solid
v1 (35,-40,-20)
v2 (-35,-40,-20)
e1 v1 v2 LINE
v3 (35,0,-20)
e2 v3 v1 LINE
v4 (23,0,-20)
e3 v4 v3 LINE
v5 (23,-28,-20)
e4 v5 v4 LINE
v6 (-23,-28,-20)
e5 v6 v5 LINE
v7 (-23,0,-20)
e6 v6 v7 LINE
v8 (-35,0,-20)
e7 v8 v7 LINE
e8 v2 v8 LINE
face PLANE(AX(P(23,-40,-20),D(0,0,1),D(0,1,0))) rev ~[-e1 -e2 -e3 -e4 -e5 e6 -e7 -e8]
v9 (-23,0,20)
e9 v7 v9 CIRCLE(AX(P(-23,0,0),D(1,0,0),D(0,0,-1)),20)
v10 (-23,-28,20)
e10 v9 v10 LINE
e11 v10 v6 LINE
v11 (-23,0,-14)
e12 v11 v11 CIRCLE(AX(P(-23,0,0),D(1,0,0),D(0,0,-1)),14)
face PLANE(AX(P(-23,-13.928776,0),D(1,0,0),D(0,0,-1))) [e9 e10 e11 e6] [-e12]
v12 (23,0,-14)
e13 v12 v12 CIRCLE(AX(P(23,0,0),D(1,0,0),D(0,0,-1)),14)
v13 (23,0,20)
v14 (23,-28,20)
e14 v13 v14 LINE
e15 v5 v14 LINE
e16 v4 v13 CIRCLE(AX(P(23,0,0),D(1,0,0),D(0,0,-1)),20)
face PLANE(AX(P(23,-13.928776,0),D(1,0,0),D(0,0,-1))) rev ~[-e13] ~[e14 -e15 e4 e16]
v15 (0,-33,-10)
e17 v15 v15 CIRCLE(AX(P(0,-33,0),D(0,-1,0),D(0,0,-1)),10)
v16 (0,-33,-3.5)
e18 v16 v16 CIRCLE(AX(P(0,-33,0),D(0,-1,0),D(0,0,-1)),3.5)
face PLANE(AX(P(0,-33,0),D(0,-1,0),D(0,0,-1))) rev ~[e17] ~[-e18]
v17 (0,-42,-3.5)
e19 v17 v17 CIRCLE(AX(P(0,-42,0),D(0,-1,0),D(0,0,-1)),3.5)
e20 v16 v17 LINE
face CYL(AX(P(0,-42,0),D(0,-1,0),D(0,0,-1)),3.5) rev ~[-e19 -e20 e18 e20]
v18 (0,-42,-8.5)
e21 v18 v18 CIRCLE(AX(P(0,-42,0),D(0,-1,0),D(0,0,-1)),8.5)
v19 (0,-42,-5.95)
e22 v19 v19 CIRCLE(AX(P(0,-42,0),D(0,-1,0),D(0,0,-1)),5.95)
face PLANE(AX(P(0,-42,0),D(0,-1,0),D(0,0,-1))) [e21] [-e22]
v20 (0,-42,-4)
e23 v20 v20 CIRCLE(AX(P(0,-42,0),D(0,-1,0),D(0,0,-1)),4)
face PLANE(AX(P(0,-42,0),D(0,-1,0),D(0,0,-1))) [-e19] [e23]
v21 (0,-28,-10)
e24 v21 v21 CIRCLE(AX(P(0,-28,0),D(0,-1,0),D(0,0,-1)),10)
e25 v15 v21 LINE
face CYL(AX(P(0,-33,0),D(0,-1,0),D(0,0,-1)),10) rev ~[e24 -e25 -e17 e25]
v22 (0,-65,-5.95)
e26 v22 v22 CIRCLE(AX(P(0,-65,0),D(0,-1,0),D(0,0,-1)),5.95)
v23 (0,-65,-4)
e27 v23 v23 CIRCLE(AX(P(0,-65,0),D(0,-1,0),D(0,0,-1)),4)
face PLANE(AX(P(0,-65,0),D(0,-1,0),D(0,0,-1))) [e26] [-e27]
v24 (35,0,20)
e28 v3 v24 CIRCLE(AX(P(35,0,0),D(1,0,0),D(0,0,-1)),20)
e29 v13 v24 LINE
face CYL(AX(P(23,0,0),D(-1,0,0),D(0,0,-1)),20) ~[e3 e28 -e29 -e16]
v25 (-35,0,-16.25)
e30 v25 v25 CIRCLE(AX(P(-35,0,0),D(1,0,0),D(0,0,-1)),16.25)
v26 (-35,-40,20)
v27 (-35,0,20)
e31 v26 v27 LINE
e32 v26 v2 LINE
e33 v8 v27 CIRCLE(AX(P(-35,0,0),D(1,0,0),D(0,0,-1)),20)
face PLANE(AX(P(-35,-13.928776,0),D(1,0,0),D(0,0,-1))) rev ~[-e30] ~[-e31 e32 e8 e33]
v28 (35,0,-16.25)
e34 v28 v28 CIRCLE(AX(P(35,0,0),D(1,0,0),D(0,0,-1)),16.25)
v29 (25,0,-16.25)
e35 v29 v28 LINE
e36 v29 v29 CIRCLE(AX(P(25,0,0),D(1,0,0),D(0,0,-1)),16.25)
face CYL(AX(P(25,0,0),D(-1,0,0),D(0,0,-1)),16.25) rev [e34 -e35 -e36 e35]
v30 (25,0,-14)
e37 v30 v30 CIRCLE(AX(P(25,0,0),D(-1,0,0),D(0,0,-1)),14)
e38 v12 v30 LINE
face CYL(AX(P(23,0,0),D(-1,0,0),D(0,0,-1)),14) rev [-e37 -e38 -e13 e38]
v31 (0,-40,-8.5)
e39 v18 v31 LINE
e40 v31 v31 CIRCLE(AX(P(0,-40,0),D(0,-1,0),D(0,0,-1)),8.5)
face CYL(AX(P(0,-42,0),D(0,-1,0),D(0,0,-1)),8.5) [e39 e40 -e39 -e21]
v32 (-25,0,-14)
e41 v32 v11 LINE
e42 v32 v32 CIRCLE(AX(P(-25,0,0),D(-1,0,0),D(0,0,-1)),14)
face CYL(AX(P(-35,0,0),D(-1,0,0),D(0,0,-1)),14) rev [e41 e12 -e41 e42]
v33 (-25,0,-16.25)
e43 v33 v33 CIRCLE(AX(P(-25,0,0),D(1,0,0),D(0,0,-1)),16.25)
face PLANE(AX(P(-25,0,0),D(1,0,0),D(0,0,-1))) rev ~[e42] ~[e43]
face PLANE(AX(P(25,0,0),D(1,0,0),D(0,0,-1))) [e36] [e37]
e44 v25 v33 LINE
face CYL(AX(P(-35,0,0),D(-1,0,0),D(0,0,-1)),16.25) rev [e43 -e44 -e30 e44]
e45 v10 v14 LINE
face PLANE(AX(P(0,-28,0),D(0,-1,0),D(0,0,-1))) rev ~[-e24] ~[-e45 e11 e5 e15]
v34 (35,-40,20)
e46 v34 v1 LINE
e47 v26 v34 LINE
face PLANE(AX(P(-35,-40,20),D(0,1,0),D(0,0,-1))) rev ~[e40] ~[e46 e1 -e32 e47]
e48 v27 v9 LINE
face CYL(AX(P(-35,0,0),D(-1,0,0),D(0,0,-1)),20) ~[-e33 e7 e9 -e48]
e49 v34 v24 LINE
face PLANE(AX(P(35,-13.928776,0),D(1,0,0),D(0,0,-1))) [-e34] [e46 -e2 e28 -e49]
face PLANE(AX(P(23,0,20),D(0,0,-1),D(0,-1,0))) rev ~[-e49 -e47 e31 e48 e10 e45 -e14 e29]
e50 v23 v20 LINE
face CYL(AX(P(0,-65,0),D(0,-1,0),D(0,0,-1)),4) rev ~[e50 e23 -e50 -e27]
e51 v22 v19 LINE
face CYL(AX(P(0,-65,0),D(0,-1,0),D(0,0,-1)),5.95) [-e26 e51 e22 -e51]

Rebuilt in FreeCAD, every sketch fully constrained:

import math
import FreeCAD as App
import Part
import Sketcher

doc = App.newDocument("Part")
body = doc.addObject("PartDesign::Body", "Body")

sketch1 = body.newObject("Sketcher::SketchObject", "Sketch")
sketch1.AttachmentSupport = (doc.getObject("XY_Plane"), [""])
sketch1.MapMode = "FlatFace"
sketch1.addGeometry(Part.Circle(App.Vector(0, 0, 0), App.Vector(0, 0, 1), 10), False)
sketch1.addConstraint([
    Sketcher.Constraint("Coincident", 0, 3, -1, 1),
    Sketcher.Constraint("Diameter", 0, 20.0),
])
pad1 = body.newObject("PartDesign::Pad", "Pad")
pad1.Profile = sketch1
pad1.Length = 5
pad1.Reversed = True
body2 = doc.addObject("PartDesign::Body", "Body001")
doc.recompute()

body.Placement = App.Placement(App.Vector(0, 0, 0), App.Rotation(App.Vector(1, 0, 0), 90))
boolean = body2.newObject("PartDesign::Boolean", "Boolean")
boolean.Type = "Fuse"
boolean.addObjects([body])
body3 = doc.addObject("PartDesign::Body", "Body002")
doc.recompute()

body2.Placement = App.Placement(App.Vector(0, -33, 0), App.Rotation(App.Vector(0, 0, 1), 0))
boolean2 = body3.newObject("PartDesign::Boolean", "Boolean001")
boolean2.Type = "Fuse"
boolean2.addObjects([body2])
body4 = doc.addObject("PartDesign::Body", "Body003")

sketch2 = body4.newObject("Sketcher::SketchObject", "Sketch001")
sketch2.AttachmentSupport = (doc.getObject("XY_Plane003"), [""])
sketch2.MapMode = "FlatFace"
sketch2.addGeometry([
    Part.LineSegment(App.Vector(-20, 35, 0), App.Vector(-20, -35, 0)),
    Part.LineSegment(App.Vector(-20, -35, 0), App.Vector(20, -35, 0)),
    Part.LineSegment(App.Vector(20, -35, 0), App.Vector(20, 35, 0)),
    Part.LineSegment(App.Vector(20, 35, 0), App.Vector(-20, 35, 0)),
    Part.Circle(App.Vector(0, 0, 0), App.Vector(0, 0, 1), 3.5),
], False)
sketch2.addConstraint([
    Sketcher.Constraint("Coincident", 0, 2, 1, 1),
    Sketcher.Constraint("Coincident", 1, 2, 2, 1),
    Sketcher.Constraint("Coincident", 2, 2, 3, 1),
    Sketcher.Constraint("Coincident", 3, 2, 0, 1),
    Sketcher.Constraint("Vertical", 0),
    Sketcher.Constraint("Horizontal", 1),
    Sketcher.Constraint("Vertical", 2),
    Sketcher.Constraint("Horizontal", 3),
    Sketcher.Constraint("Coincident", 4, 3, -1, 1),
    Sketcher.Constraint("Symmetric", 0, 2, 2, 2, -1, 1),
    Sketcher.Constraint("Diameter", 4, 7.0),
    Sketcher.Constraint("DistanceX", 1, 1, 1, 2, 40.0),
    Sketcher.Constraint("DistanceY", 0, 2, 0, 1, 70.0),
])
pad2 = body4.newObject("PartDesign::Pad", "Pad001")
pad2.Profile = sketch2
pad2.Length = 12
pad2.Reversed = True
body5 = doc.addObject("PartDesign::Body", "Body004")
doc.recompute()

body4.Placement = App.Placement(App.Vector(0, 0, 0), App.Rotation(App.Vector(1, 0, 0), 90))
boolean3 = body5.newObject("PartDesign::Boolean", "Boolean002")
boolean3.Type = "Fuse"
boolean3.addObjects([body4])
body6 = doc.addObject("PartDesign::Body", "Body005")
doc.recompute()

body5.Placement = App.Placement(App.Vector(0, -40, 0), App.Rotation(App.Vector(0, 0, 1), 0))
boolean4 = body6.newObject("PartDesign::Boolean", "Boolean003")
boolean4.Type = "Fuse"
boolean4.addObjects([body5])
doc.recompute()

boolean5 = body6.newObject("PartDesign::Boolean", "Boolean004")
boolean5.Type = "Cut"
boolean5.addObjects([body3])
body7 = doc.addObject("PartDesign::Body", "Body006")

sketch3 = body7.newObject("Sketcher::SketchObject", "Sketch002")
sketch3.AttachmentSupport = (doc.getObject("XY_Plane006"), [""])
sketch3.MapMode = "FlatFace"
sketch3.addGeometry([
    Part.Circle(App.Vector(0, 0, 0), App.Vector(0, 0, 1), 8.5),
    Part.Circle(App.Vector(0, 0, 0), App.Vector(0, 0, 1), 3.5),
], False)
sketch3.addConstraint([
    Sketcher.Constraint("Coincident", 0, 3, -1, 1),
    Sketcher.Constraint("Coincident", 1, 3, -1, 1),
    Sketcher.Constraint("Diameter", 0, 17.0),
    Sketcher.Constraint("Diameter", 1, 7.0),
])
pad3 = body7.newObject("PartDesign::Pad", "Pad002")
pad3.Profile = sketch3
pad3.Length = 2
pad3.Reversed = True
body8 = doc.addObject("PartDesign::Body", "Body007")
doc.recompute()

body7.Placement = App.Placement(App.Vector(0, 0, 0), App.Rotation(App.Vector(1, 0, 0), 90))
boolean6 = body8.newObject("PartDesign::Boolean", "Boolean005")
boolean6.Type = "Fuse"
boolean6.addObjects([body7])
body9 = doc.addObject("PartDesign::Body", "Body008")
doc.recompute()

body8.Placement = App.Placement(App.Vector(0, -42, 0), App.Rotation(App.Vector(0, 0, 1), 0))
boolean7 = body9.newObject("PartDesign::Boolean", "Boolean006")
boolean7.Type = "Fuse"
boolean7.addObjects([body8])
body10 = doc.addObject("PartDesign::Body", "Body009")

sketch4 = body10.newObject("Sketcher::SketchObject", "Sketch003")
sketch4.AttachmentSupport = (doc.getObject("XY_Plane009"), [""])
sketch4.MapMode = "FlatFace"
sketch4.addGeometry([
    Part.Circle(App.Vector(0, 0, 0), App.Vector(0, 0, 1), 5.95),
    Part.Circle(App.Vector(0, 0, 0), App.Vector(0, 0, 1), 4),
], False)
sketch4.addConstraint([
    Sketcher.Constraint("Coincident", 0, 3, -1, 1),
    Sketcher.Constraint("Coincident", 1, 3, -1, 1),
    Sketcher.Constraint("Diameter", 1, 8.0),
    Sketcher.Constraint("Diameter", 0, 11.9),
])
pad4 = body10.newObject("PartDesign::Pad", "Pad003")
pad4.Profile = sketch4
pad4.Length = 25
pad4.Reversed = True
body11 = doc.addObject("PartDesign::Body", "Body010")
doc.recompute()

body10.Placement = App.Placement(App.Vector(0, 0, 0), App.Rotation(App.Vector(1, 0, 0), 90))
boolean8 = body11.newObject("PartDesign::Boolean", "Boolean007")
boolean8.Type = "Fuse"
boolean8.addObjects([body10])
body12 = doc.addObject("PartDesign::Body", "Body011")
doc.recompute()

body11.Placement = App.Placement(App.Vector(0, -65, 0), App.Rotation(App.Vector(0, 0, 1), 0))
boolean9 = body12.newObject("PartDesign::Boolean", "Boolean008")
boolean9.Type = "Fuse"
boolean9.addObjects([body11])
body13 = doc.addObject("PartDesign::Body", "Body012")

sketch5 = body13.newObject("Sketcher::SketchObject", "Sketch004")
sketch5.AttachmentSupport = (doc.getObject("XY_Plane012"), [""])
sketch5.MapMode = "FlatFace"
sketch5.AttachmentOffset = App.Placement(App.Vector(0, 0, 2), App.Rotation())
sketch5.addGeometry(Part.Circle(App.Vector(0, 0, 0), App.Vector(0, 0, 1), 16.25), False)
sketch5.addConstraint([
    Sketcher.Constraint("Coincident", 0, 3, -1, 1),
    Sketcher.Constraint("Diameter", 0, 32.5),
])
pad5 = body13.newObject("PartDesign::Pad", "Pad004")
pad5.Profile = sketch5
pad5.Length = 10
body14 = doc.addObject("PartDesign::Body", "Body013")

sketch6 = body14.newObject("Sketcher::SketchObject", "Sketch005")
sketch6.AttachmentSupport = (doc.getObject("XY_Plane013"), [""])
sketch6.MapMode = "FlatFace"
sketch6.addGeometry([
    Part.ArcOfCircle(Part.Circle(App.Vector(0, 0, 0), App.Vector(0, 0, 1), 20), math.radians(0), math.radians(180)),
    Part.LineSegment(App.Vector(-20, 0, 0), App.Vector(-20, -40, 0)),
    Part.LineSegment(App.Vector(-20, -40, 0), App.Vector(20, -40, 0)),
    Part.LineSegment(App.Vector(20, -40, 0), App.Vector(20, 0, 0)),
    Part.Circle(App.Vector(0, 0, 0), App.Vector(0, 0, 1), 14),
], False)
sketch6.addConstraint([
    Sketcher.Constraint("Tangent", 0, 2, 1, 1),
    Sketcher.Constraint("Coincident", 1, 2, 2, 1),
    Sketcher.Constraint("Coincident", 2, 2, 3, 1),
    Sketcher.Constraint("Tangent", 3, 2, 0, 1),
    Sketcher.Constraint("Vertical", 1),
    Sketcher.Constraint("Horizontal", 2),
    Sketcher.Constraint("Vertical", 3),
    Sketcher.Constraint("Coincident", 0, 3, -1, 1),
    Sketcher.Constraint("Coincident", 4, 3, -1, 1),
    Sketcher.Constraint("Equal", 2, 1),
    Sketcher.Constraint("Diameter", 4, 28.0),
    Sketcher.Constraint("Radius", 0, 20.0),
])
pad6 = body14.newObject("PartDesign::Pad", "Pad005")
pad6.Profile = sketch6
pad6.Length = 12
doc.recompute()

boolean10 = body14.newObject("PartDesign::Boolean", "Boolean009")
boolean10.Type = "Cut"
boolean10.addObjects([body13])
body15 = doc.addObject("PartDesign::Body", "Body014")
doc.recompute()

body14.Placement = App.Placement(App.Vector(0, 0, 23), App.Rotation(App.Vector(0, 0, 1), 0))
boolean11 = body15.newObject("PartDesign::Boolean", "Boolean010")
boolean11.Type = "Fuse"
boolean11.addObjects([body14])
body16 = doc.addObject("PartDesign::Body", "Body015")

sketch7 = body16.newObject("Sketcher::SketchObject", "Sketch006")
sketch7.AttachmentSupport = (doc.getObject("XY_Plane015"), [""])
sketch7.MapMode = "FlatFace"
sketch7.addGeometry(Part.Circle(App.Vector(0, 0, 0), App.Vector(0, 0, 1), 16.25), False)
sketch7.addConstraint([
    Sketcher.Constraint("Coincident", 0, 3, -1, 1),
    Sketcher.Constraint("Diameter", 0, 32.5),
])
pad7 = body16.newObject("PartDesign::Pad", "Pad006")
pad7.Profile = sketch7
pad7.Length = 10
body17 = doc.addObject("PartDesign::Body", "Body016")

sketch8 = body17.newObject("Sketcher::SketchObject", "Sketch007")
sketch8.AttachmentSupport = (doc.getObject("XY_Plane016"), [""])
sketch8.MapMode = "FlatFace"
sketch8.addGeometry([
    Part.ArcOfCircle(Part.Circle(App.Vector(0, 0, 0), App.Vector(0, 0, 1), 20), math.radians(0), math.radians(180)),
    Part.LineSegment(App.Vector(-20, 0, 0), App.Vector(-20, -40, 0)),
    Part.LineSegment(App.Vector(-20, -40, 0), App.Vector(20, -40, 0)),
    Part.LineSegment(App.Vector(20, -40, 0), App.Vector(20, 0, 0)),
    Part.Circle(App.Vector(0, 0, 0), App.Vector(0, 0, 1), 14),
], False)
sketch8.addConstraint([
    Sketcher.Constraint("Tangent", 0, 2, 1, 1),
    Sketcher.Constraint("Coincident", 1, 2, 2, 1),
    Sketcher.Constraint("Coincident", 2, 2, 3, 1),
    Sketcher.Constraint("Tangent", 3, 2, 0, 1),
    Sketcher.Constraint("Vertical", 1),
    Sketcher.Constraint("Horizontal", 2),
    Sketcher.Constraint("Vertical", 3),
    Sketcher.Constraint("Coincident", 0, 3, -1, 1),
    Sketcher.Constraint("Coincident", 4, 3, -1, 1),
    Sketcher.Constraint("Equal", 2, 1),
    Sketcher.Constraint("Diameter", 4, 28.0),
    Sketcher.Constraint("Radius", 0, 20.0),
])
pad8 = body17.newObject("PartDesign::Pad", "Pad007")
pad8.Profile = sketch8
pad8.Length = 12
doc.recompute()

boolean12 = body17.newObject("PartDesign::Boolean", "Boolean011")
boolean12.Type = "Cut"
boolean12.addObjects([body16])
body18 = doc.addObject("PartDesign::Body", "Body017")
doc.recompute()

body17.Placement = App.Placement(App.Vector(0, 0, -35), App.Rotation(App.Vector(0, 0, 1), 0))
boolean13 = body18.newObject("PartDesign::Boolean", "Boolean012")
boolean13.Type = "Fuse"
boolean13.addObjects([body17])
doc.recompute()

boolean14 = body18.newObject("PartDesign::Boolean", "Boolean013")
boolean14.Type = "Fuse"
boolean14.addObjects([body6])
doc.recompute()

boolean15 = body18.newObject("PartDesign::Boolean", "Boolean014")
boolean15.Type = "Fuse"
boolean15.addObjects([body9])
doc.recompute()

boolean16 = body18.newObject("PartDesign::Boolean", "Boolean015")
boolean16.Type = "Fuse"
boolean16.addObjects([body12])
doc.recompute()

boolean17 = body18.newObject("PartDesign::Boolean", "Boolean016")
boolean17.Type = "Fuse"
boolean17.addObjects([body15])
body19 = doc.addObject("PartDesign::Body", "Body018")
doc.recompute()

body18.Placement = App.Placement(App.Vector(0, 0, 0), App.Rotation(App.Vector(0, 1, 0), 90))
boolean18 = body19.newObject("PartDesign::Boolean", "Boolean017")
boolean18.Type = "Fuse"
boolean18.addObjects([body18])

doc.recompute()
